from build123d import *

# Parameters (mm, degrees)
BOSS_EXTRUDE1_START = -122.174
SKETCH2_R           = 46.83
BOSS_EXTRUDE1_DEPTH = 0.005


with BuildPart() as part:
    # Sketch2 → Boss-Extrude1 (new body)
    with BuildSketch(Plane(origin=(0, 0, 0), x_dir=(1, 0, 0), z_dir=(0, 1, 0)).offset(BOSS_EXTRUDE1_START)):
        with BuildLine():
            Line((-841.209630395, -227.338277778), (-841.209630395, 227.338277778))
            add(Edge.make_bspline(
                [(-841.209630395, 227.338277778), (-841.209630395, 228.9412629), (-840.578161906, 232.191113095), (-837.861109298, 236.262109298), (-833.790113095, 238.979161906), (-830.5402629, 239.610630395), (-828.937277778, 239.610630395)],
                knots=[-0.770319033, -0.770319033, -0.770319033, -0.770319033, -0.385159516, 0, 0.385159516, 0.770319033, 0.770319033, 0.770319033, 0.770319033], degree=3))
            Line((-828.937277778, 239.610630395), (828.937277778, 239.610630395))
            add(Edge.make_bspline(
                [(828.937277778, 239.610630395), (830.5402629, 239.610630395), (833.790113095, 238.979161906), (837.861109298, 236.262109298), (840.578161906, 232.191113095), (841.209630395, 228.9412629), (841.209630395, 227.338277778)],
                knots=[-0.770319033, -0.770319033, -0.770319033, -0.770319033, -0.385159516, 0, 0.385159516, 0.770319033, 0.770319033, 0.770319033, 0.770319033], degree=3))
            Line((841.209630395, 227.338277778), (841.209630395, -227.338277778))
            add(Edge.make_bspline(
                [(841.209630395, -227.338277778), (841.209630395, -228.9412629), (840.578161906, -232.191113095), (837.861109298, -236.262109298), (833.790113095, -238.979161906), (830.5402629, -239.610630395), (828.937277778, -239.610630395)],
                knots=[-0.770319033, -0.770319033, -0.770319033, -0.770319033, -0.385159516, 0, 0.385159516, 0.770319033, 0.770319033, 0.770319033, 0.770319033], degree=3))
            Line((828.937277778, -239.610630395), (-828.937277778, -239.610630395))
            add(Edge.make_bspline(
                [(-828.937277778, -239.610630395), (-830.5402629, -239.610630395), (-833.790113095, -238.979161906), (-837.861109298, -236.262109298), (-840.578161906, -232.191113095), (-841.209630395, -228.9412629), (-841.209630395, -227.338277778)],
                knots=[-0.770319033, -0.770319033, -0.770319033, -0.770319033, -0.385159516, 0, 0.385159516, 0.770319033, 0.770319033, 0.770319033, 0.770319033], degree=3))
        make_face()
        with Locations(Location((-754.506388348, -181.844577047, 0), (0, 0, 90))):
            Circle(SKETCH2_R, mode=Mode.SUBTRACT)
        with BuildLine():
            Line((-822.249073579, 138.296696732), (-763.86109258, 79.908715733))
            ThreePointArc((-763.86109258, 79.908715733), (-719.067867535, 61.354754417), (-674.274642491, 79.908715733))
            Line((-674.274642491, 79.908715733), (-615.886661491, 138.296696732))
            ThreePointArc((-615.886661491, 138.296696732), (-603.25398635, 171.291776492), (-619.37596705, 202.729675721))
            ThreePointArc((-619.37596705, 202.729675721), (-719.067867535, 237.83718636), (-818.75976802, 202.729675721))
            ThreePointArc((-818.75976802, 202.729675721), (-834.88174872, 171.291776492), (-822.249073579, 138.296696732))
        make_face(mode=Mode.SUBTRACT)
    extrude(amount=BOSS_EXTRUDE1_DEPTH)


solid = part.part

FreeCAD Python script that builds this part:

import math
import FreeCAD as App
import Part
import Sketcher

V = App.Vector

doc = App.newDocument("Part")
params = doc.addObject("Spreadsheet::Sheet", "Params")
for row, (alias, value) in enumerate([
    ("sketch1_diameter", "93.66 mm"),
    ("pad1_length", "0.005 mm"),
], start=1):
    params.set(f"A{row}", alias)
    params.set(f"B{row}", "=" + value)
    params.setAlias(f"B{row}", alias)

body = doc.addObject("PartDesign::Body", "Body")

sketch1 = body.newObject("Sketcher::SketchObject", "Sketch")
sketch1.AttachmentSupport = (doc.getObject("XZ_Plane"), [""])
sketch1.MapMode = "FlatFace"
sketch1.AttachmentOffset = App.Placement(V(0, 0, 122.174), App.Rotation())
sketch1.addGeometry(Part.LineSegment(V(-841.20963, -227.338278, 0), V(-841.20963, 227.338278, 0)), False)
sketch1.addGeometry(Part.BSplineCurve([V(-828.937278, 239.61063, 0), V(-830.540263, 239.61063, 0), V(-833.790113, 238.979162, 0), V(-837.861109, 236.262109, 0), V(-840.578162, 232.191113, 0), V(-841.20963, 228.941263, 0), V(-841.20963, 227.338278, 0)], [4, 1, 1, 1, 4], [-0.770319033, -0.385159516, 0, 0.385159516, 0.770319033], False, 3, [1, 1, 1, 1, 1, 1, 1], False), False)
sketch1.addGeometry(Part.LineSegment(V(-828.937278, 239.61063, 0), V(828.937278, 239.61063, 0)), False)
sketch1.addGeometry(Part.BSplineCurve([V(841.20963, 227.338278, 0), V(841.20963, 228.941263, 0), V(840.578162, 232.191113, 0), V(837.861109, 236.262109, 0), V(833.790113, 238.979162, 0), V(830.540263, 239.61063, 0), V(828.937278, 239.61063, 0)], [4, 1, 1, 1, 4], [-0.770319033, -0.385159516, 0, 0.385159516, 0.770319033], False, 3, [1, 1, 1, 1, 1, 1, 1], False), False)
sketch1.addGeometry(Part.LineSegment(V(841.20963, 227.338278, 0), V(841.20963, -227.338278, 0)), False)
sketch1.addGeometry(Part.BSplineCurve([V(828.937278, -239.61063, 0), V(830.540263, -239.61063, 0), V(833.790113, -238.979162, 0), V(837.861109, -236.262109, 0), V(840.578162, -232.191113, 0), V(841.20963, -228.941263, 0), V(841.20963, -227.338278, 0)], [4, 1, 1, 1, 4], [-0.770319033, -0.385159516, 0, 0.385159516, 0.770319033], False, 3, [1, 1, 1, 1, 1, 1, 1], False), False)
sketch1.addGeometry(Part.LineSegment(V(828.937278, -239.61063, 0), V(-828.937278, -239.61063, 0)), False)
sketch1.addGeometry(Part.BSplineCurve([V(-841.20963, -227.338278, 0), V(-841.20963, -228.941263, 0), V(-840.578162, -232.191113, 0), V(-837.861109, -236.262109, 0), V(-833.790113, -238.979162, 0), V(-830.540263, -239.61063, 0), V(-828.937278, -239.61063, 0)], [4, 1, 1, 1, 4], [-0.770319033, -0.385159516, 0, 0.385159516, 0.770319033], False, 3, [1, 1, 1, 1, 1, 1, 1], False), False)
sketch1.addGeometry(Part.Circle(V(-754.506388, 181.844577, 0), V(0, 0, 1), 46.83), False)
sketch1.addGeometry(Part.ArcOfCircle(Part.Circle(V(-791.597984, -168.947786, 0), V(0, 0, 1), 43.347186), math.radians(135), math.radians(231.199539)), False)
sketch1.addGeometry(Part.ArcOfCircle(Part.Circle(V(-719.067868, -78.74, 0), V(0, 0, 1), 159.097186), math.radians(-128.800461), math.radians(-51.199539)), False)
sketch1.addGeometry(Part.ArcOfCircle(Part.Circle(V(-646.537751, -168.947786, 0), V(0, 0, 1), 43.347186), math.radians(-51.199539), math.radians(45)), False)
sketch1.addGeometry(Part.LineSegment(V(-615.886661, -138.296697, 0), V(-674.274642, -79.908716, 0)), False)
sketch1.addGeometry(Part.ArcOfCircle(Part.Circle(V(-719.067868, -124.701941, 0), V(0, 0, 1), 63.347186), math.radians(45), math.radians(135)), False)
sketch1.addGeometry(Part.LineSegment(V(-763.861093, -79.908716, 0), V(-822.249074, -138.296697, 0)), False)
sketch1.addConstraint(Sketcher.Constraint("Block", 1))
sketch1.addConstraint(Sketcher.Constraint("Block", 3))
sketch1.addConstraint(Sketcher.Constraint("Block", 5))
sketch1.addConstraint(Sketcher.Constraint("Block", 7))
sketch1.addConstraint(Sketcher.Constraint("Coincident", 0, 2, 1, 2))
sketch1.addConstraint(Sketcher.Constraint("Coincident", 1, 1, 2, 1))
sketch1.addConstraint(Sketcher.Constraint("Coincident", 2, 2, 3, 2))
sketch1.addConstraint(Sketcher.Constraint("Coincident", 3, 1, 4, 1))
sketch1.addConstraint(Sketcher.Constraint("Coincident", 4, 2, 5, 2))
sketch1.addConstraint(Sketcher.Constraint("Coincident", 5, 1, 6, 1))
sketch1.addConstraint(Sketcher.Constraint("Coincident", 6, 2, 7, 2))
sketch1.addConstraint(Sketcher.Constraint("Coincident", 7, 1, 0, 1))
sketch1.addConstraint(Sketcher.Constraint("Tangent", 9, 2, 10, 1))
sketch1.addConstraint(Sketcher.Constraint("Tangent", 10, 2, 11, 1))
sketch1.addConstraint(Sketcher.Constraint("Tangent", 11, 2, 12, 1))
sketch1.addConstraint(Sketcher.Constraint("Tangent", 12, 2, 13, 1))
sketch1.addConstraint(Sketcher.Constraint("Tangent", 13, 2, 14, 1))
sketch1.addConstraint(Sketcher.Constraint("Tangent", 14, 2, 9, 1))
sketch1.addConstraint(Sketcher.Constraint("Equal", 9, 11))
sketch1.addConstraint(Sketcher.Constraint("Perpendicular", 12, 14))
sketch1.addConstraint(Sketcher.Constraint("Horizontal", 9, 3, 11, 3))
sketch1.addConstraint(Sketcher.Constraint("Horizontal", 12, 2, 13, 2))
sketch1.addConstraint(Sketcher.Constraint("Diameter", 8, 93.66))
sketch1.addConstraint(Sketcher.Constraint("DistanceY", 10, 3, -1, 1, 78.74))
sketch1.addConstraint(Sketcher.Constraint("Radius", 9, 43.347186))
sketch1.addConstraint(Sketcher.Constraint("Radius", 10, 159.097186))
sketch1.addConstraint(Sketcher.Constraint("Radius", 13, 63.347186))
sketch1.addConstraint(Sketcher.Constraint("DistanceY", 8, 3, 0, 2, 45.493701))
sketch1.addConstraint(Sketcher.Constraint("DistanceX", 9, 2, 13, 3, 99.6919))
sketch1.addConstraint(Sketcher.Constraint("DistanceX", 8, 3, -1, 1, 754.506388))
sketch1.addConstraint(Sketcher.Constraint("DistanceX", 11, 3, -1, 1, 646.537751))
sketch1.setExpression("Constraints[22]", "Params.sketch1_diameter")
pad1 = body.newObject("PartDesign::Pad", "Pad")
pad1.Profile = sketch1
pad1.setExpression("Length", "Params.pad1_length")
pad1.Reversed = True

doc.recompute()
